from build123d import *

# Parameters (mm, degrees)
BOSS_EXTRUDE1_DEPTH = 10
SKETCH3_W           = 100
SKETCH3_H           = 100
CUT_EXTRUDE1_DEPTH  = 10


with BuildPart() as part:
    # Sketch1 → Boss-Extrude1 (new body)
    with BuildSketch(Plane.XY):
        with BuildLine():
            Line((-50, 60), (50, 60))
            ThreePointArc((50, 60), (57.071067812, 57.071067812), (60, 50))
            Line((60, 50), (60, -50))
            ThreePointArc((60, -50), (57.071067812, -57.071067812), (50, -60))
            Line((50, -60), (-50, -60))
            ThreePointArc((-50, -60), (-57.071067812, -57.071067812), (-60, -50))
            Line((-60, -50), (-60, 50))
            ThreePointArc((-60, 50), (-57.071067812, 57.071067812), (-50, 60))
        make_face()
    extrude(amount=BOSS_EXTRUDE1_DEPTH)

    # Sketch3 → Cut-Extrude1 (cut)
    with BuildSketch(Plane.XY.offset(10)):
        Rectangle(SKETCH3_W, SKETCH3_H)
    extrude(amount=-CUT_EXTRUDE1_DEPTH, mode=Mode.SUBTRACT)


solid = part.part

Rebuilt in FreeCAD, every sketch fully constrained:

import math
import FreeCAD as App
import Part
import Sketcher


def add_polygon(sketch, points):
    """Adds a closed chain of lines whose ends are joined by coincident constraints."""
    first, n = sketch.GeometryCount, len(points)
    for a, b in zip(points, points[1:] + points[:1]):
        sketch.addGeometry(Part.LineSegment(App.Vector(*a, 0), App.Vector(*b, 0)), False)
    for i in range(n):
        sketch.addConstraint(Sketcher.Constraint("Coincident", first + i, 2, first + (i + 1) % n, 1))

doc = App.newDocument("Part")
params = doc.addObject("Spreadsheet::Sheet", "Params")
for row, (alias, value) in enumerate([
    ("sketch1_radius", "10 mm"),
    ("sketch1_width", "100 mm"),
    ("pad1_length", "10 mm"),
    ("sketch2_width", "100 mm"),
    ("pocket1_length", "10 mm"),
], start=1):
    params.set(f"A{row}", alias)
    params.set(f"B{row}", "=" + value)
    params.setAlias(f"B{row}", alias)

body = doc.addObject("PartDesign::Body", "Body")

sketch1 = body.newObject("Sketcher::SketchObject", "Sketch")
sketch1.AttachmentSupport = (doc.getObject("XY_Plane"), [""])
sketch1.MapMode = "FlatFace"
sketch1.addGeometry([
    Part.LineSegment(App.Vector(50, 60, 0), App.Vector(-50, 60, 0)),
    Part.ArcOfCircle(Part.Circle(App.Vector(-50, 50, 0), App.Vector(0, 0, 1), 10), math.radians(90), math.radians(180)),
    Part.LineSegment(App.Vector(-60, 50, 0), App.Vector(-60, -50, 0)),
    Part.ArcOfCircle(Part.Circle(App.Vector(-50, -50, 0), App.Vector(0, 0, 1), 10), math.radians(180), math.radians(270)),
    Part.LineSegment(App.Vector(-50, -60, 0), App.Vector(50, -60, 0)),
    Part.ArcOfCircle(Part.Circle(App.Vector(50, -50, 0), App.Vector(0, 0, 1), 10), math.radians(-90), math.radians(0)),
    Part.LineSegment(App.Vector(60, -50, 0), App.Vector(60, 50, 0)),
    Part.ArcOfCircle(Part.Circle(App.Vector(50, 50, 0), App.Vector(0, 0, 1), 10), math.radians(0), math.radians(90)),
], False)
sketch1.addConstraint([
    Sketcher.Constraint("Tangent", 0, 2, 1, 1),
    Sketcher.Constraint("Tangent", 1, 2, 2, 1),
    Sketcher.Constraint("Tangent", 2, 2, 3, 1),
    Sketcher.Constraint("Tangent", 3, 2, 4, 1),
    Sketcher.Constraint("Tangent", 4, 2, 5, 1),
    Sketcher.Constraint("Tangent", 5, 2, 6, 1),
    Sketcher.Constraint("Tangent", 6, 2, 7, 1),
    Sketcher.Constraint("Tangent", 7, 2, 0, 1),
    Sketcher.Constraint("Horizontal", 0),
    Sketcher.Constraint("Vertical", 2),
    Sketcher.Constraint("Horizontal", 4),
    Sketcher.Constraint("Vertical", 6),
    Sketcher.Constraint("Equal", 1, 3),
    Sketcher.Constraint("Equal", 3, 5),
    Sketcher.Constraint("Equal", 5, 7),
    Sketcher.Constraint("Symmetric", 1, 3, 5, 3, -1, 1),
    Sketcher.Constraint("Equal", 4, 2),
    Sketcher.Constraint("Radius", 1, 10.0),
    Sketcher.Constraint("DistanceX", 0, 2, 0, 1, 100.0),
])
sketch1.setExpression("Constraints[17]", "Params.sketch1_radius")
sketch1.setExpression("Constraints[18]", "Params.sketch1_width")
pad1 = body.newObject("PartDesign::Pad", "Pad")
pad1.Profile = sketch1
pad1.setExpression("Length", "Params.pad1_length")

sketch2 = body.newObject("Sketcher::SketchObject", "Sketch001")
sketch2.AttachmentSupport = (doc.getObject("XY_Plane"), [""])
sketch2.MapMode = "FlatFace"
sketch2.AttachmentOffset = App.Placement(App.Vector(0, 0, 10), App.Rotation())
add_polygon(sketch2, [(-50, 50), (-50, -50), (50, -50), (50, 50)])
sketch2.addConstraint([
    Sketcher.Constraint("Vertical", 0),
    Sketcher.Constraint("Horizontal", 1),
    Sketcher.Constraint("Vertical", 2),
    Sketcher.Constraint("Horizontal", 3),
    Sketcher.Constraint("Symmetric", 0, 2, 2, 2, -1, 1),
    Sketcher.Constraint("Equal", 3, 0),
    Sketcher.Constraint("DistanceX", 1, 1, 1, 2, 100.0),
])
sketch2.setExpression("Constraints[10]", "Params.sketch2_width")
pocket1 = body.newObject("PartDesign::Pocket", "Pocket")
pocket1.Profile = sketch2
pocket1.setExpression("Length", "Params.pocket1_length")

doc.recompute()
